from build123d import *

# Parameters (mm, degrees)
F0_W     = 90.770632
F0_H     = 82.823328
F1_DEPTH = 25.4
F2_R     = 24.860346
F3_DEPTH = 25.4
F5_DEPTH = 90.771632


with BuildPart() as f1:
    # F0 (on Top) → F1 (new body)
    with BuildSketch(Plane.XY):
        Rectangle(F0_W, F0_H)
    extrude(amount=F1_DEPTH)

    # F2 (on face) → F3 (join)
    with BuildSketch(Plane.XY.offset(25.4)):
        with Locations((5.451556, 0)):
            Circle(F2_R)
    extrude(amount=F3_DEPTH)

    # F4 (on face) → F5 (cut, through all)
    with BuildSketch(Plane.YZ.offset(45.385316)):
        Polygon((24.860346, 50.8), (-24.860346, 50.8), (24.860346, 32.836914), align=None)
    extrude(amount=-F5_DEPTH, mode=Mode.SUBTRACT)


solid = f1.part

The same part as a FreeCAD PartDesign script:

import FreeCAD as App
import Part
import Sketcher
Q = App.Units.Quantity

doc = App.newDocument("Part")
params = doc.addObject("Spreadsheet::Sheet", "Params")
for row, (alias, value) in enumerate([
    ("pad1_length", "1 in"),
    ("pad2_length", "1 in"),
], start=1):
    params.set(f"A{row}", alias)
    params.set(f"B{row}", "=" + value)
    params.setAlias(f"B{row}", alias)

body = doc.addObject("PartDesign::Body", "Body")

sketch1 = body.newObject("Sketcher::SketchObject", "Sketch")
sketch1.AttachmentSupport = (doc.getObject("XY_Plane"), [""])
sketch1.MapMode = "FlatFace"
sketch1.addGeometry([
    Part.LineSegment(App.Vector(-45.385316, 41.411664, 0), App.Vector(-45.385316, -41.411664, 0)),
    Part.LineSegment(App.Vector(-45.385316, -41.411664, 0), App.Vector(45.385316, -41.411664, 0)),
    Part.LineSegment(App.Vector(45.385316, -41.411664, 0), App.Vector(45.385316, 41.411664, 0)),
    Part.LineSegment(App.Vector(45.385316, 41.411664, 0), App.Vector(-45.385316, 41.411664, 0)),
], False)
sketch1.addConstraint([
    Sketcher.Constraint("Coincident", 0, 2, 1, 1),
    Sketcher.Constraint("Coincident", 1, 2, 2, 1),
    Sketcher.Constraint("Coincident", 2, 2, 3, 1),
    Sketcher.Constraint("Coincident", 3, 2, 0, 1),
    Sketcher.Constraint("Vertical", 0),
    Sketcher.Constraint("Horizontal", 1),
    Sketcher.Constraint("Vertical", 2),
    Sketcher.Constraint("Horizontal", 3),
    Sketcher.Constraint("Symmetric", 0, 2, 2, 2, -1, 1),
    Sketcher.Constraint("DistanceY", 0, 2, 0, 1, 82.823328),
    Sketcher.Constraint("DistanceX", 1, 1, 1, 2, 90.770632),
])
pad1 = body.newObject("PartDesign::Pad", "Pad")
pad1.Profile = sketch1
pad1.setExpression("Length", "Params.pad1_length")

sketch2 = body.newObject("Sketcher::SketchObject", "Sketch001")
sketch2.AttachmentSupport = (doc.getObject("XY_Plane"), [""])
sketch2.MapMode = "FlatFace"
sketch2.AttachmentOffset = App.Placement(App.Vector(0, 0, 1 * 25.4), App.Rotation())
sketch2.addGeometry(Part.Circle(App.Vector(5.451556, 0, 0), App.Vector(0, 0, 1), 24.860346), False)
sketch2.addConstraint([
    Sketcher.Constraint("PointOnObject", 0, 3, -1),
    Sketcher.Constraint("Diameter", 0, 49.720692),
    Sketcher.Constraint("DistanceX", -1, 1, 0, 3, 5.451556),
])
pad2 = body.newObject("PartDesign::Pad", "Pad001")
pad2.Profile = sketch2
pad2.setExpression("Length", "Params.pad2_length")

sketch3 = body.newObject("Sketcher::SketchObject", "Sketch002")
sketch3.AttachmentSupport = (doc.getObject("YZ_Plane"), [""])
sketch3.MapMode = "FlatFace"
sketch3.AttachmentOffset = App.Placement(App.Vector(0, 0, 45.385316), App.Rotation())
sketch3.addGeometry([
    Part.LineSegment(App.Vector(24.860346, 50.8, 0), App.Vector(-24.860346, 50.8, 0)),
    Part.LineSegment(App.Vector(-24.860346, 50.8, 0), App.Vector(24.860346, 32.836914, 0)),
    Part.LineSegment(App.Vector(24.860346, 32.836914, 0), App.Vector(24.860346, 50.8, 0)),
], False)
sketch3.addConstraint([
    Sketcher.Constraint("Coincident", 0, 2, 1, 1),
    Sketcher.Constraint("Coincident", 1, 2, 2, 1),
    Sketcher.Constraint("Coincident", 2, 2, 0, 1),
    Sketcher.Constraint("Horizontal", 0),
    Sketcher.Constraint("Vertical", 2),
    Sketcher.Constraint("DistanceY", -1, 1, 0, 2, Q("2 in")),
    Sketcher.Constraint("DistanceX", 0, 2, 0, 1, 49.720692),
    Sketcher.Constraint("DistanceY", 2, 1, 2, 2, 17.963086),
    Sketcher.Constraint("DistanceX", 0, 2, -1, 1, 24.860346),
])
pocket1 = body.newObject("PartDesign::Pocket", "Pocket")
pocket1.Profile = sketch3
pocket1.Type = "ThroughAll"

doc.recompute()
